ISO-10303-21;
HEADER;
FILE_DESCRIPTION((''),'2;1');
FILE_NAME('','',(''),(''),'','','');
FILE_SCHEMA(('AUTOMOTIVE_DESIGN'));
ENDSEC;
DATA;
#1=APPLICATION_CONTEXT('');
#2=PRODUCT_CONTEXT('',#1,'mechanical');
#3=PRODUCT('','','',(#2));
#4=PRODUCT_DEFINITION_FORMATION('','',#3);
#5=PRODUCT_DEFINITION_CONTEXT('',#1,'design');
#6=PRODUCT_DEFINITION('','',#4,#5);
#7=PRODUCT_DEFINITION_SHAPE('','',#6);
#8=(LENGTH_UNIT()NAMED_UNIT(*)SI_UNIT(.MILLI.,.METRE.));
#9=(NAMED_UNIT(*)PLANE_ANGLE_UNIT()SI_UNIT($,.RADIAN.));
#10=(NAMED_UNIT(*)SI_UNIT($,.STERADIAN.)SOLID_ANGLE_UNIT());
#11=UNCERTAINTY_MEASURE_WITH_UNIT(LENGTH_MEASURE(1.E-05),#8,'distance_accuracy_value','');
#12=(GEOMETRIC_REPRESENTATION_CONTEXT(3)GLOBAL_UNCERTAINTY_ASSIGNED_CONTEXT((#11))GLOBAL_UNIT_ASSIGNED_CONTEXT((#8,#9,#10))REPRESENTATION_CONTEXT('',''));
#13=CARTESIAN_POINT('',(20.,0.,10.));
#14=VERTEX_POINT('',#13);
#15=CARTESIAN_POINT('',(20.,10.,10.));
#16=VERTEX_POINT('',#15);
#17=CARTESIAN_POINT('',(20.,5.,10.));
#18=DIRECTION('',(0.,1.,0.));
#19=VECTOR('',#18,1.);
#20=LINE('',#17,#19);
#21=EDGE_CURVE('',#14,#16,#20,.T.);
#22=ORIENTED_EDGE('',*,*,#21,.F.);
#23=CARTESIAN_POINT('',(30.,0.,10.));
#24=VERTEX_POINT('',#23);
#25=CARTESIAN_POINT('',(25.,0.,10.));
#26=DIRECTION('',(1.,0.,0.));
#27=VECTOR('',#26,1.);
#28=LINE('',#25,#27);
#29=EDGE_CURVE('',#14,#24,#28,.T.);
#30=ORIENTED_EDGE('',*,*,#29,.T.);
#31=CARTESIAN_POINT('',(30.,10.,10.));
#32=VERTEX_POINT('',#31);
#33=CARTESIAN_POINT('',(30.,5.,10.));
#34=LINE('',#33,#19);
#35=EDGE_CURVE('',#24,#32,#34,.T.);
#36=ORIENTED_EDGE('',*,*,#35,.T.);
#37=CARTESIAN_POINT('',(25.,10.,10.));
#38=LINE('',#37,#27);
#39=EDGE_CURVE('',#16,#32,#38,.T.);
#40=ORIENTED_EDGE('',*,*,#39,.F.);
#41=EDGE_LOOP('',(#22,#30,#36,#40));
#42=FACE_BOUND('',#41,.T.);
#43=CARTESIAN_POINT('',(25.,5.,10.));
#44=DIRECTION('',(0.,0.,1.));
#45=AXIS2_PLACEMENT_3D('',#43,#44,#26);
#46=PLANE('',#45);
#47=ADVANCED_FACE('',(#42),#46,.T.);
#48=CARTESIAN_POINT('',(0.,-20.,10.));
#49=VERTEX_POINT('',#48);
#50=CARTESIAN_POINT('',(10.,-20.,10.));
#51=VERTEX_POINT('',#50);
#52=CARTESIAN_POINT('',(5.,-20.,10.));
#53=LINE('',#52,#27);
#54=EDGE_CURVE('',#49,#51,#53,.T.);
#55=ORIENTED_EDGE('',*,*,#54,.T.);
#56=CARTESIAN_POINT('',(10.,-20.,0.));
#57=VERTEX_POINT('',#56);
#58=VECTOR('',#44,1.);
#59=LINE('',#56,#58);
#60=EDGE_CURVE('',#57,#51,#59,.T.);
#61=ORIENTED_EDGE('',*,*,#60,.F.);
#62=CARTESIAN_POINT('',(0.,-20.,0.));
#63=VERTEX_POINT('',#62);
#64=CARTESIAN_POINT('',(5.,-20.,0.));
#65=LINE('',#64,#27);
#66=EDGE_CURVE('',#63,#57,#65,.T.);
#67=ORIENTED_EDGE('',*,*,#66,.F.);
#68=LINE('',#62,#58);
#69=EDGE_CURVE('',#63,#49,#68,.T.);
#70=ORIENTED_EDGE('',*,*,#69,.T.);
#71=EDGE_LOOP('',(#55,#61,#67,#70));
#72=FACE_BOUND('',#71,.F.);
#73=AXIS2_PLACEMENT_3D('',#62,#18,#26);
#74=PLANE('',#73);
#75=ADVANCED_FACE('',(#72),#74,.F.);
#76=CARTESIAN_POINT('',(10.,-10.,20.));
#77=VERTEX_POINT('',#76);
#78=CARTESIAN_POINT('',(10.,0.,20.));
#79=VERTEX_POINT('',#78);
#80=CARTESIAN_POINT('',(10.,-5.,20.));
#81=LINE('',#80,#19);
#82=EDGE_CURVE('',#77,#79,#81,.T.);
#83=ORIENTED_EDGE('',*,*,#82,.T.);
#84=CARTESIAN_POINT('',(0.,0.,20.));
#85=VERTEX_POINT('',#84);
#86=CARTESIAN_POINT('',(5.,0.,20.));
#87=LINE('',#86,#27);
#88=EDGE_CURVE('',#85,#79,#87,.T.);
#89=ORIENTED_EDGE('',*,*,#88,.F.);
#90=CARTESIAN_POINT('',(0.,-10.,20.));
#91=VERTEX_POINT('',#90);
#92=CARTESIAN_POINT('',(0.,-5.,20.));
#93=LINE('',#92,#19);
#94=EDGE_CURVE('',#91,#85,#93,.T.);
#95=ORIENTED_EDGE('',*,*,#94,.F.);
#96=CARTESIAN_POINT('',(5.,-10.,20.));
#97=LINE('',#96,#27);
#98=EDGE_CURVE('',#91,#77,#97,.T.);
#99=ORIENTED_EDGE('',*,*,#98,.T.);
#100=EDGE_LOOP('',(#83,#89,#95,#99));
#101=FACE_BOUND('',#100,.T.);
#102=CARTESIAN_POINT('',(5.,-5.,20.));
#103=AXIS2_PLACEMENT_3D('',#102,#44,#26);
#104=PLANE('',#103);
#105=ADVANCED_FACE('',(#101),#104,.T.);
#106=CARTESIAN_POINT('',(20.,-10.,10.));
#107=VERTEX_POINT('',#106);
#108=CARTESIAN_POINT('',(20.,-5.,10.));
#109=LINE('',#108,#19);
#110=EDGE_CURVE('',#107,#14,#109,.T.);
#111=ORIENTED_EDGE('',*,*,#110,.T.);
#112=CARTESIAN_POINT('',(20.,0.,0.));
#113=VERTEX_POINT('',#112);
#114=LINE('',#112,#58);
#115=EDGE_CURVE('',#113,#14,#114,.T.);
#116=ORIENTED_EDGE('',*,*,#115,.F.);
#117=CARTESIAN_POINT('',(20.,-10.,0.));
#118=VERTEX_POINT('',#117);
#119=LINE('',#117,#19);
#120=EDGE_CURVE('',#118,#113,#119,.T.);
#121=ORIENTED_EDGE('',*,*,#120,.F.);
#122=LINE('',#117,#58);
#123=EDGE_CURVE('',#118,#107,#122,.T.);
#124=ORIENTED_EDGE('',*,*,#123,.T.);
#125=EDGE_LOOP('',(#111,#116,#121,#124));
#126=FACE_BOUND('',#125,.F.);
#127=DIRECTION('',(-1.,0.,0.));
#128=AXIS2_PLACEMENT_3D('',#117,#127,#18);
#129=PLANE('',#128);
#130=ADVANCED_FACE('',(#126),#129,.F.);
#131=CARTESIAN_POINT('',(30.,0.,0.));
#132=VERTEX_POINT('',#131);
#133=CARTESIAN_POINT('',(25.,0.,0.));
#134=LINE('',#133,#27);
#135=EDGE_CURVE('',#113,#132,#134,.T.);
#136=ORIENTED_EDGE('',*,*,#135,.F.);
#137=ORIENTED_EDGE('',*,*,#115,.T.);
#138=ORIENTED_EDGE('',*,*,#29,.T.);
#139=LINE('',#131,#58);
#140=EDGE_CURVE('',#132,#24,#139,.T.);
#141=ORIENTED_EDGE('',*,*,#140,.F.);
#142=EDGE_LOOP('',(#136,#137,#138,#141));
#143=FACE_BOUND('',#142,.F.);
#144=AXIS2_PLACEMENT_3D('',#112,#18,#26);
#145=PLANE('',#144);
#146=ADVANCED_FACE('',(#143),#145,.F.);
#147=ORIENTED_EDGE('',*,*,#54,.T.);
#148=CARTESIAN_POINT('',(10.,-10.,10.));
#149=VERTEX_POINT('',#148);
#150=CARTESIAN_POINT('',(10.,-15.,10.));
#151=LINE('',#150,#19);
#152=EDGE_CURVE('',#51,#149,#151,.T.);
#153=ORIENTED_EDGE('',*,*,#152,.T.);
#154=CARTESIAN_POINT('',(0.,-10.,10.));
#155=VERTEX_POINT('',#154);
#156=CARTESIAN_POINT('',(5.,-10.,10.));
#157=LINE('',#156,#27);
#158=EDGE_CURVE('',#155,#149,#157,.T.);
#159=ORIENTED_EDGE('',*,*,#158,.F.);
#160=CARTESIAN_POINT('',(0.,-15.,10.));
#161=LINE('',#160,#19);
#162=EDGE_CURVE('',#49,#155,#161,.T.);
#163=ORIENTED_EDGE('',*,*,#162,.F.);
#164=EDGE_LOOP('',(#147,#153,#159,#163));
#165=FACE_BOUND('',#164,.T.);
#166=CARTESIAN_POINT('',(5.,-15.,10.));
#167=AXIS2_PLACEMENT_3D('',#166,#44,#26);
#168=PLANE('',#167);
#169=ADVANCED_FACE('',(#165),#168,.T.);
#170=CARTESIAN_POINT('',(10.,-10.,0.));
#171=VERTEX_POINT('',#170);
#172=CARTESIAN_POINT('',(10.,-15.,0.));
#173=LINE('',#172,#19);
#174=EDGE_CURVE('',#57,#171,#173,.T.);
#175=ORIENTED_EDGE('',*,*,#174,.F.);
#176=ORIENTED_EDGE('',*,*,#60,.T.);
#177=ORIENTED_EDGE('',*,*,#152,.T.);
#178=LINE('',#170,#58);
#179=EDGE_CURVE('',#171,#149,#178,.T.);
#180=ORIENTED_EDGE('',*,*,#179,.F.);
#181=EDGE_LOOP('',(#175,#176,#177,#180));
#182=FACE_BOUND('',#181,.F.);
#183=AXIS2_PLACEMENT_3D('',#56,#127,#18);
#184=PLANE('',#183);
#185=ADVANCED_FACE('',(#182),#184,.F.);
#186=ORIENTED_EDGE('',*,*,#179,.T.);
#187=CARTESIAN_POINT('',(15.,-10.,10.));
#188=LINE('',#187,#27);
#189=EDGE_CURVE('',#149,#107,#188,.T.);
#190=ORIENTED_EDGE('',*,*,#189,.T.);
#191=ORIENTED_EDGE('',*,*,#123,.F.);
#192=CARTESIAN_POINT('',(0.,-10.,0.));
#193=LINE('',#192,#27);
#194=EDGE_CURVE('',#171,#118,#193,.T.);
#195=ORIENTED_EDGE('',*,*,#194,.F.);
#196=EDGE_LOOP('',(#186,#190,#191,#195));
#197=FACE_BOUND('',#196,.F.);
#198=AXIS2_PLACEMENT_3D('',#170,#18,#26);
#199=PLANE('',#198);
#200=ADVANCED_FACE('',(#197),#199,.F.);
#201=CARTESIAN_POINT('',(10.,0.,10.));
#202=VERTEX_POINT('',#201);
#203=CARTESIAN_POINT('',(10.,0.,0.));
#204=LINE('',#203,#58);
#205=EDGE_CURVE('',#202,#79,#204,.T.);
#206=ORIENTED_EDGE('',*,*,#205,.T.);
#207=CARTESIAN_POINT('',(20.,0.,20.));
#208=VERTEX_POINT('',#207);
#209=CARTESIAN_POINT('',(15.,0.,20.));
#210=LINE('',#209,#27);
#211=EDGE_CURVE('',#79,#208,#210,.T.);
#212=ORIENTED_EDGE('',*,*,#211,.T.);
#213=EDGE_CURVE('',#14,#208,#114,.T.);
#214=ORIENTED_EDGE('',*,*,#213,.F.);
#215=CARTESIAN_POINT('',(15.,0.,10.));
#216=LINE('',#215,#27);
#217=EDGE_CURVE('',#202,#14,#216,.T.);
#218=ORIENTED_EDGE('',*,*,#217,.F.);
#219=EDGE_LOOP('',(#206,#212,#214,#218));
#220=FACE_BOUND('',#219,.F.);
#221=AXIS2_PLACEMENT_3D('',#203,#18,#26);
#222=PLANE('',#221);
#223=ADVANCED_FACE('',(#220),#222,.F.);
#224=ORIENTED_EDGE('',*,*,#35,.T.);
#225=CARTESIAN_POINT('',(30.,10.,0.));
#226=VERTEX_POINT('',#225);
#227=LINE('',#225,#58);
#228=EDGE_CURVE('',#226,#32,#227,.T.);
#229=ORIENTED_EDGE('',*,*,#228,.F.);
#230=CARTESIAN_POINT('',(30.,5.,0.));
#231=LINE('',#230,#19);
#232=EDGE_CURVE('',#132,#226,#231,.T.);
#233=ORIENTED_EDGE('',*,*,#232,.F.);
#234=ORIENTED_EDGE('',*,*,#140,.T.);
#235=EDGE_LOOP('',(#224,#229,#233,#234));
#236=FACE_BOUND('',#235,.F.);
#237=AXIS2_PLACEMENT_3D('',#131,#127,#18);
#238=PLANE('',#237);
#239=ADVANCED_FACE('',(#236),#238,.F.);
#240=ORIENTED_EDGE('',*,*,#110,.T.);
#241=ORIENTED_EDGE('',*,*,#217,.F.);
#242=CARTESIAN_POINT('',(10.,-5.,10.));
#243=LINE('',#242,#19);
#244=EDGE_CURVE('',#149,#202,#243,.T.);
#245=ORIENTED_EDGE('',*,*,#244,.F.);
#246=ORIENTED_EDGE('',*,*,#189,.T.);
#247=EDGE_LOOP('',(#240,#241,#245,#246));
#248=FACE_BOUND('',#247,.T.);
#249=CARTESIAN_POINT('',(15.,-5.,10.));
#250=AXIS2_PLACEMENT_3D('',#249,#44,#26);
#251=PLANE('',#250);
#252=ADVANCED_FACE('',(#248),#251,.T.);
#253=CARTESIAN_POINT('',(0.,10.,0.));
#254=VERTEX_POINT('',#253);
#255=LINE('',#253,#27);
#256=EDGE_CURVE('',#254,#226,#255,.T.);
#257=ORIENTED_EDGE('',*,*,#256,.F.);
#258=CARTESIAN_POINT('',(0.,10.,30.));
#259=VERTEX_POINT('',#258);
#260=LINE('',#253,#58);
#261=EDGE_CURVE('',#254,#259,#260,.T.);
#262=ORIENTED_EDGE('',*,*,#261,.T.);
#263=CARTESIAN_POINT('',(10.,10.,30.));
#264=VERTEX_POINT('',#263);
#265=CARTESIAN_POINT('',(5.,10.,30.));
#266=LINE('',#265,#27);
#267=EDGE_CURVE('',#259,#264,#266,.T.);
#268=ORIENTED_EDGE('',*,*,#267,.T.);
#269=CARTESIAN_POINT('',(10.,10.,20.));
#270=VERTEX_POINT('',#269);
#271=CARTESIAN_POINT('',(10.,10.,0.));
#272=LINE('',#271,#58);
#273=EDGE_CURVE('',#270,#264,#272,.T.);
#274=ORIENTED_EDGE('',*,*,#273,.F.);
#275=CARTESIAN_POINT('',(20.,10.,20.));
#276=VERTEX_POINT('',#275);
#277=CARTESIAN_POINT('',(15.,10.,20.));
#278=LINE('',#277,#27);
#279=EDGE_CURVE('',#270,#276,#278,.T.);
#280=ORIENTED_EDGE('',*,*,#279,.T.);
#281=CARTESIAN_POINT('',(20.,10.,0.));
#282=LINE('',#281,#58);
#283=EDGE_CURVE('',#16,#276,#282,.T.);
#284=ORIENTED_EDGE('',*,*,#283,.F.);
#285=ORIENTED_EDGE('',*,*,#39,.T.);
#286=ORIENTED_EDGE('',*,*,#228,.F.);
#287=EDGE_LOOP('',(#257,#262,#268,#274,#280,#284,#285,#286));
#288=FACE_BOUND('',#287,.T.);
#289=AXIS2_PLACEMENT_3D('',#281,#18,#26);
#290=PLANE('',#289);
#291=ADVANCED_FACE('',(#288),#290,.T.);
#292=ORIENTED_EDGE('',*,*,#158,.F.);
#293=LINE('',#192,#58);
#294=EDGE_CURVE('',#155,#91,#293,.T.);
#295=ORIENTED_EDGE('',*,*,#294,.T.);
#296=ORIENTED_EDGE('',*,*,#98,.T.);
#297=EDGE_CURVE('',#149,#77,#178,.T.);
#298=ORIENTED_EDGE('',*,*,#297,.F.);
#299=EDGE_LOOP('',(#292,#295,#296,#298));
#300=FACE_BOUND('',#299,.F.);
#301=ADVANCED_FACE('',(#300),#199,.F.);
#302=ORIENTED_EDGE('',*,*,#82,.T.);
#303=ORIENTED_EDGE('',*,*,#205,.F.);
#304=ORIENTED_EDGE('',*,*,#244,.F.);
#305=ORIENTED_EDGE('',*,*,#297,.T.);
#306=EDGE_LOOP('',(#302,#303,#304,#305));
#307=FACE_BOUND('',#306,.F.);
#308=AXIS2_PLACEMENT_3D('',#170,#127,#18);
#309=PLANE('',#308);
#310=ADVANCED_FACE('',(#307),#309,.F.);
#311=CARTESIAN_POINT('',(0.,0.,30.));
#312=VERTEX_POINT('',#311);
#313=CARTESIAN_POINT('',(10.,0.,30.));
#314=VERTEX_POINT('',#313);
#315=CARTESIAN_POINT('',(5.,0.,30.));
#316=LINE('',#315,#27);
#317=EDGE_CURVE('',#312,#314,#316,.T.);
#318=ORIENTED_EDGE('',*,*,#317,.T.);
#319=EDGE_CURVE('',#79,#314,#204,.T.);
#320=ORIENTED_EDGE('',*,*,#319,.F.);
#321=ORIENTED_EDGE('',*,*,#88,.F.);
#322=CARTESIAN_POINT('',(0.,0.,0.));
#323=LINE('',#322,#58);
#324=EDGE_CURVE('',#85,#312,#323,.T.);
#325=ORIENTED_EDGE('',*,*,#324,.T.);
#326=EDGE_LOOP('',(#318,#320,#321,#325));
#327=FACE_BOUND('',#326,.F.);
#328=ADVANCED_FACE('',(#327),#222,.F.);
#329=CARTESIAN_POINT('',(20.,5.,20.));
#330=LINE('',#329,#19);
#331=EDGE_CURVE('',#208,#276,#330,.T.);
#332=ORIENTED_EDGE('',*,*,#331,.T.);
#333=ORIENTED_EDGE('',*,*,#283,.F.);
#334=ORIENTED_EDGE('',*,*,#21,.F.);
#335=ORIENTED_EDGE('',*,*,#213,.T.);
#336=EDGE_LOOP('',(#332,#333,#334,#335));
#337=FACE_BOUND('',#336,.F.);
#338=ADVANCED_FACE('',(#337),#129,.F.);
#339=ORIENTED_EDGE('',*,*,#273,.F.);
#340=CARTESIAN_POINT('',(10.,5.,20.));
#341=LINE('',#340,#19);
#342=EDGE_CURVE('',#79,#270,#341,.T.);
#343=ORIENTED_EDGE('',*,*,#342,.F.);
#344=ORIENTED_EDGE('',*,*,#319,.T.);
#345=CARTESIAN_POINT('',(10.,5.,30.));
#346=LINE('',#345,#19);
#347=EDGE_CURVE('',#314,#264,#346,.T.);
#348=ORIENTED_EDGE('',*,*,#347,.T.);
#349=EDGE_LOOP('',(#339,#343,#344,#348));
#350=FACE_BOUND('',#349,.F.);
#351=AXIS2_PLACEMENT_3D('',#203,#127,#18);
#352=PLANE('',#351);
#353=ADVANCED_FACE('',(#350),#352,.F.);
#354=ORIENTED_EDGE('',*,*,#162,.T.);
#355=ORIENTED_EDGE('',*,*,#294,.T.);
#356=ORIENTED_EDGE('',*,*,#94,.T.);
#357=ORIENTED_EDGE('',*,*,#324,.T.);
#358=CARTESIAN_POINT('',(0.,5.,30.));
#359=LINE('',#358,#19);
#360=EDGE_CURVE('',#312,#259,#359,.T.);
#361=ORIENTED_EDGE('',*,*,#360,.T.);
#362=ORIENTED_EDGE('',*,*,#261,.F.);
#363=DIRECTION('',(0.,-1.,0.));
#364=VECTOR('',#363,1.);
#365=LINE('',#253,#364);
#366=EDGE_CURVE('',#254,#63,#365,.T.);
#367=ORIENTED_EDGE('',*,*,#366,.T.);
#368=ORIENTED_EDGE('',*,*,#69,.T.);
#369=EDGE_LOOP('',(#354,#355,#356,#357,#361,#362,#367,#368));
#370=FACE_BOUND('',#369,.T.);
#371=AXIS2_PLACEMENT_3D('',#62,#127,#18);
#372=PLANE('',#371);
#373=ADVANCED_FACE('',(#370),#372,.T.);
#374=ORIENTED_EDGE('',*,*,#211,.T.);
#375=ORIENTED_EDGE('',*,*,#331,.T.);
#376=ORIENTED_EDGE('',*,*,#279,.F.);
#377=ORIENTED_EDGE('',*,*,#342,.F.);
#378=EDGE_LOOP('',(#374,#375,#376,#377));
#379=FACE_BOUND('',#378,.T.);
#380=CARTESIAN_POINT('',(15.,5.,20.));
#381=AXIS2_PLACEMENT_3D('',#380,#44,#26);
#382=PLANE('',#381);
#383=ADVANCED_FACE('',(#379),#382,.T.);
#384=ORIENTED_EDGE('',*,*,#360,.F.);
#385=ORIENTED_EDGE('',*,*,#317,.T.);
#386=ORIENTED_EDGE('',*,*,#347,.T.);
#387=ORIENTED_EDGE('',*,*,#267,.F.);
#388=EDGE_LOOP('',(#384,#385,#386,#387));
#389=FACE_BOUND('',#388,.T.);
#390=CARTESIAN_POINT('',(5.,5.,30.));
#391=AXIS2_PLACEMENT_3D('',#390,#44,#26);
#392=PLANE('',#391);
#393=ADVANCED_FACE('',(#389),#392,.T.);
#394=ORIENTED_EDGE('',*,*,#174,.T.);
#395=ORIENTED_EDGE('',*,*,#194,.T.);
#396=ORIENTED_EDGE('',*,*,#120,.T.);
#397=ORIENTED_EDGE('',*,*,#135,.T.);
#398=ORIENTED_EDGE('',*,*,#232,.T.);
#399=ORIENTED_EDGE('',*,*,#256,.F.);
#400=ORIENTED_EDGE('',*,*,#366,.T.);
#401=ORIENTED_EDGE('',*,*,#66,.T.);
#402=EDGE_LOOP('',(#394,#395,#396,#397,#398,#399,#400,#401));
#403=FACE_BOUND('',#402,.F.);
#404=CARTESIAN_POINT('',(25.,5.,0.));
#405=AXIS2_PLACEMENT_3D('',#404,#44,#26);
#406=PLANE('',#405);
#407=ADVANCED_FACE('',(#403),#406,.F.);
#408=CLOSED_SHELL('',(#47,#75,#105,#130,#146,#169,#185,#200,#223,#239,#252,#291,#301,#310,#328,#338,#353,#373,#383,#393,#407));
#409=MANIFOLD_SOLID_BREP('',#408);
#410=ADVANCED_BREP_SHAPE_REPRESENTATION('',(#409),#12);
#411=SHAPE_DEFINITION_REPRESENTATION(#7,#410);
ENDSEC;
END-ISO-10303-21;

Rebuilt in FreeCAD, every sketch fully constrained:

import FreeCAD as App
import Part
import Sketcher
from FreeCAD import Vector

doc = App.newDocument("Part")
body = doc.addObject("PartDesign::Body", "Body")

sketch1 = body.newObject("Sketcher::SketchObject", "Sketch")
sketch1.AttachmentSupport = (doc.getObject("XY_Plane"), [""])
sketch1.MapMode = "FlatFace"
sketch1.addGeometry([
    Part.LineSegment(Vector(10, 10, 0), Vector(10, 0, 0)),
    Part.LineSegment(Vector(10, 0, 0), Vector(20, 0, 0)),
    Part.LineSegment(Vector(20, 0, 0), Vector(20, 10, 0)),
    Part.LineSegment(Vector(20, 10, 0), Vector(10, 10, 0)),
], False)
sketch1.addConstraint([
    Sketcher.Constraint("Coincident", 0, 2, 1, 1),
    Sketcher.Constraint("Coincident", 1, 2, 2, 1),
    Sketcher.Constraint("Coincident", 2, 2, 3, 1),
    Sketcher.Constraint("Coincident", 3, 2, 0, 1),
    Sketcher.Constraint("Vertical", 0),
    Sketcher.Constraint("Horizontal", 1),
    Sketcher.Constraint("Vertical", 2),
    Sketcher.Constraint("Horizontal", 3),
    Sketcher.Constraint("PointOnObject", 0, 2, -1),
    Sketcher.Constraint("Equal", 3, 0),
    Sketcher.Constraint("DistanceX", 1, 1, 1, 2, 10.0),
    Sketcher.Constraint("DistanceX", -1, 1, 0, 2, 10.0),
])
pad1 = body.newObject("PartDesign::Pad", "Pad")
pad1.Profile = sketch1
pad1.Length = 20
body2 = doc.addObject("PartDesign::Body", "Body001")

sketch2 = body2.newObject("Sketcher::SketchObject", "Sketch001")
sketch2.AttachmentSupport = (doc.getObject("XY_Plane001"), [""])
sketch2.MapMode = "FlatFace"
sketch2.addGeometry([
    Part.LineSegment(Vector(0, 0, 0), Vector(0, -10, 0)),
    Part.LineSegment(Vector(0, -10, 0), Vector(10, -10, 0)),
    Part.LineSegment(Vector(10, -10, 0), Vector(10, 0, 0)),
    Part.LineSegment(Vector(10, 0, 0), Vector(0, 0, 0)),
], False)
sketch2.addConstraint([
    Sketcher.Constraint("Coincident", 0, 2, 1, 1),
    Sketcher.Constraint("Coincident", 1, 2, 2, 1),
    Sketcher.Constraint("Coincident", 2, 2, 3, 1),
    Sketcher.Constraint("Coincident", 3, 2, 0, 1),
    Sketcher.Constraint("Vertical", 0),
    Sketcher.Constraint("Horizontal", 1),
    Sketcher.Constraint("Vertical", 2),
    Sketcher.Constraint("Horizontal", 3),
    Sketcher.Constraint("Coincident", 3, 2, -1, 1),
    Sketcher.Constraint("Equal", 3, 0),
    Sketcher.Constraint("DistanceX", 1, 1, 1, 2, 10.0),
])
pad2 = body2.newObject("PartDesign::Pad", "Pad001")
pad2.Profile = sketch2
pad2.Length = 20
body3 = doc.addObject("PartDesign::Body", "Body002")

sketch3 = body3.newObject("Sketcher::SketchObject", "Sketch002")
sketch3.AttachmentSupport = (doc.getObject("XY_Plane002"), [""])
sketch3.MapMode = "FlatFace"
sketch3.addGeometry([
    Part.LineSegment(Vector(10, 0, 0), Vector(10, -10, 0)),
    Part.LineSegment(Vector(10, -10, 0), Vector(20, -10, 0)),
    Part.LineSegment(Vector(20, -10, 0), Vector(20, 0, 0)),
    Part.LineSegment(Vector(20, 0, 0), Vector(10, 0, 0)),
], False)
sketch3.addConstraint([
    Sketcher.Constraint("Coincident", 0, 2, 1, 1),
    Sketcher.Constraint("Coincident", 1, 2, 2, 1),
    Sketcher.Constraint("Coincident", 2, 2, 3, 1),
    Sketcher.Constraint("Coincident", 3, 2, 0, 1),
    Sketcher.Constraint("Vertical", 0),
    Sketcher.Constraint("Horizontal", 1),
    Sketcher.Constraint("Vertical", 2),
    Sketcher.Constraint("Horizontal", 3),
    Sketcher.Constraint("PointOnObject", 2, 2, -1),
    Sketcher.Constraint("Equal", 3, 0),
    Sketcher.Constraint("DistanceX", 1, 1, 1, 2, 10.0),
    Sketcher.Constraint("DistanceX", -1, 1, 0, 2, 10.0),
])
pad3 = body3.newObject("PartDesign::Pad", "Pad002")
pad3.Profile = sketch3
pad3.Length = 10
body4 = doc.addObject("PartDesign::Body", "Body003")

sketch4 = body4.newObject("Sketcher::SketchObject", "Sketch003")
sketch4.AttachmentSupport = (doc.getObject("XY_Plane003"), [""])
sketch4.MapMode = "FlatFace"
sketch4.addGeometry([
    Part.LineSegment(Vector(0, -10, 0), Vector(0, -20, 0)),
    Part.LineSegment(Vector(0, -20, 0), Vector(10, -20, 0)),
    Part.LineSegment(Vector(10, -20, 0), Vector(10, -10, 0)),
    Part.LineSegment(Vector(10, -10, 0), Vector(0, -10, 0)),
], False)
sketch4.addConstraint([
    Sketcher.Constraint("Coincident", 0, 2, 1, 1),
    Sketcher.Constraint("Coincident", 1, 2, 2, 1),
    Sketcher.Constraint("Coincident", 2, 2, 3, 1),
    Sketcher.Constraint("Coincident", 3, 2, 0, 1),
    Sketcher.Constraint("Vertical", 0),
    Sketcher.Constraint("Horizontal", 1),
    Sketcher.Constraint("Vertical", 2),
    Sketcher.Constraint("Horizontal", 3),
    Sketcher.Constraint("PointOnObject", 0, 2, -2),
    Sketcher.Constraint("Equal", 3, 0),
    Sketcher.Constraint("DistanceX", 1, 1, 1, 2, 10.0),
    Sketcher.Constraint("DistanceY", 0, 2, -1, 1, 20.0),
])
pad4 = body4.newObject("PartDesign::Pad", "Pad003")
pad4.Profile = sketch4
pad4.Length = 10
body5 = doc.addObject("PartDesign::Body", "Body004")

sketch5 = body5.newObject("Sketcher::SketchObject", "Sketch004")
sketch5.AttachmentSupport = (doc.getObject("XY_Plane004"), [""])
sketch5.MapMode = "FlatFace"
sketch5.addGeometry([
    Part.LineSegment(Vector(20, 10, 0), Vector(20, 0, 0)),
    Part.LineSegment(Vector(20, 0, 0), Vector(30, 0, 0)),
    Part.LineSegment(Vector(30, 0, 0), Vector(30, 10, 0)),
    Part.LineSegment(Vector(30, 10, 0), Vector(20, 10, 0)),
], False)
sketch5.addConstraint([
    Sketcher.Constraint("Coincident", 0, 2, 1, 1),
    Sketcher.Constraint("Coincident", 1, 2, 2, 1),
    Sketcher.Constraint("Coincident", 2, 2, 3, 1),
    Sketcher.Constraint("Coincident", 3, 2, 0, 1),
    Sketcher.Constraint("Vertical", 0),
    Sketcher.Constraint("Horizontal", 1),
    Sketcher.Constraint("Vertical", 2),
    Sketcher.Constraint("Horizontal", 3),
    Sketcher.Constraint("PointOnObject", 0, 2, -1),
    Sketcher.Constraint("Equal", 3, 0),
    Sketcher.Constraint("DistanceX", 1, 1, 1, 2, 10.0),
    Sketcher.Constraint("DistanceX", -1, 1, 0, 2, 20.0),
])
pad5 = body5.newObject("PartDesign::Pad", "Pad004")
pad5.Profile = sketch5
pad5.Length = 10
body6 = doc.addObject("PartDesign::Body", "Body005")

sketch6 = body6.newObject("Sketcher::SketchObject", "Sketch005")
sketch6.AttachmentSupport = (doc.getObject("XY_Plane005"), [""])
sketch6.MapMode = "FlatFace"
sketch6.addGeometry([
    Part.LineSegment(Vector(0, 10, 0), Vector(0, 0, 0)),
    Part.LineSegment(Vector(0, 0, 0), Vector(10, 0, 0)),
    Part.LineSegment(Vector(10, 0, 0), Vector(10, 10, 0)),
    Part.LineSegment(Vector(10, 10, 0), Vector(0, 10, 0)),
], False)
sketch6.addConstraint([
    Sketcher.Constraint("Coincident", 0, 2, 1, 1),
    Sketcher.Constraint("Coincident", 1, 2, 2, 1),
    Sketcher.Constraint("Coincident", 2, 2, 3, 1),
    Sketcher.Constraint("Coincident", 3, 2, 0, 1),
    Sketcher.Constraint("Vertical", 0),
    Sketcher.Constraint("Horizontal", 1),
    Sketcher.Constraint("Vertical", 2),
    Sketcher.Constraint("Horizontal", 3),
    Sketcher.Constraint("Coincident", 0, 2, -1, 1),
    Sketcher.Constraint("Equal", 3, 0),
    Sketcher.Constraint("DistanceX", 1, 1, 1, 2, 10.0),
])
pad6 = body6.newObject("PartDesign::Pad", "Pad005")
pad6.Profile = sketch6
pad6.Length = 30
doc.recompute()

boolean = body6.newObject("PartDesign::Boolean", "Boolean")
boolean.Type = "Fuse"
boolean.addObjects([body])
doc.recompute()

boolean2 = body6.newObject("PartDesign::Boolean", "Boolean001")
boolean2.Type = "Fuse"
boolean2.addObjects([body2])
doc.recompute()

boolean3 = body6.newObject("PartDesign::Boolean", "Boolean002")
boolean3.Type = "Fuse"
boolean3.addObjects([body3])
doc.recompute()

boolean4 = body6.newObject("PartDesign::Boolean", "Boolean003")
boolean4.Type = "Fuse"
boolean4.addObjects([body4])
doc.recompute()

boolean5 = body6.newObject("PartDesign::Boolean", "Boolean004")
boolean5.Type = "Fuse"
boolean5.addObjects([body5])

doc.recompute()
